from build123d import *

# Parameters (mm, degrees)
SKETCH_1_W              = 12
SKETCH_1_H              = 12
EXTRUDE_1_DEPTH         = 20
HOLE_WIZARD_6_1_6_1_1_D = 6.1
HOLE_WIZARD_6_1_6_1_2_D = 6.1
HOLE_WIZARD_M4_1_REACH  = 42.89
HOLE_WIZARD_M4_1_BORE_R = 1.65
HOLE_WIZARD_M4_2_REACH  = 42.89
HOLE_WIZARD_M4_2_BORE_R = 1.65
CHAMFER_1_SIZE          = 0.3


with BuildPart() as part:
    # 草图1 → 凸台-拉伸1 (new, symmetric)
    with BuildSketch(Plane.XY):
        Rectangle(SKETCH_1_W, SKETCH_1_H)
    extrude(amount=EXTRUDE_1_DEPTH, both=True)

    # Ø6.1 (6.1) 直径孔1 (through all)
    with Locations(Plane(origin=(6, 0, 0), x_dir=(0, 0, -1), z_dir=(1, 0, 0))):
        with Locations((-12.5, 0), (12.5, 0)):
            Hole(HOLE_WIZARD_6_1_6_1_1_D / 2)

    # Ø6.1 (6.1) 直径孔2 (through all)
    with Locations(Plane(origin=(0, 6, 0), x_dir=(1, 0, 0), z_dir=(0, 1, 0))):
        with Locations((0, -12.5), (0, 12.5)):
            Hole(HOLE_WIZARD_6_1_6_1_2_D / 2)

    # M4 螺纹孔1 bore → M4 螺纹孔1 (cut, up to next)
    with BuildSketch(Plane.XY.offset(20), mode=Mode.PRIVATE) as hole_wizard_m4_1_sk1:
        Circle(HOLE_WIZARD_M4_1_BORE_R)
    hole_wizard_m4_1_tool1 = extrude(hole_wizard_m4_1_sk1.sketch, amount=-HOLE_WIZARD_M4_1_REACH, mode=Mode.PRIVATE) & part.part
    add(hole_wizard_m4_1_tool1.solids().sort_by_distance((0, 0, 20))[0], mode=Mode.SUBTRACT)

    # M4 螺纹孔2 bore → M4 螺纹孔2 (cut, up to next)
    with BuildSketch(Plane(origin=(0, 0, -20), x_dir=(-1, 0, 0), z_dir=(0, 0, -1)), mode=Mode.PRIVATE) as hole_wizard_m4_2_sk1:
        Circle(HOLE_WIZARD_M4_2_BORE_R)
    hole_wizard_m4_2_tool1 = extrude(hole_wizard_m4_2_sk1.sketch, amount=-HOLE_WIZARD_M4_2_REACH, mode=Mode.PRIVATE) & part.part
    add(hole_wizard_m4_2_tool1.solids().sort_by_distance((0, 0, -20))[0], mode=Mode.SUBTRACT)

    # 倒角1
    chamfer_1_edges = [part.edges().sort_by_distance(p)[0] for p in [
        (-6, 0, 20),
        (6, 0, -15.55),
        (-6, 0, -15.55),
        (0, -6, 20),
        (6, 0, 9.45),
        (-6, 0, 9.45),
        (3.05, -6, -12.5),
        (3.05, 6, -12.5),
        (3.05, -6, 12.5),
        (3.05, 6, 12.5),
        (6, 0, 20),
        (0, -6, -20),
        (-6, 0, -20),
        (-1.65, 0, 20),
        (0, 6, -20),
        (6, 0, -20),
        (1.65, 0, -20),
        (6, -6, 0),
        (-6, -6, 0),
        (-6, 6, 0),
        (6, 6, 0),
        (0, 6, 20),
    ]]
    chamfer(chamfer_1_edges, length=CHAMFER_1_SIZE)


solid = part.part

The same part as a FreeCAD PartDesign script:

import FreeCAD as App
import Part
import Sketcher


def edges_at(feature, points):
    """Names of the edges that pass closest to the given points."""
    edges = feature.Shape.Edges
    near = lambda p: min(range(len(edges)), key=lambda i: edges[i].distToShape(Part.Vertex(*p))[0])
    return sorted({f"Edge{near(p) + 1}" for p in points})


def add_polygon(sketch, points):
    """Adds a closed chain of lines whose ends are joined by coincident constraints."""
    first, n = sketch.GeometryCount, len(points)
    for a, b in zip(points, points[1:] + points[:1]):
        sketch.addGeometry(Part.LineSegment(App.Vector(*a, 0), App.Vector(*b, 0)), False)
    for i in range(n):
        sketch.addConstraint(Sketcher.Constraint("Coincident", first + i, 2, first + (i + 1) % n, 1))

doc = App.newDocument("Part")
params = doc.addObject("Spreadsheet::Sheet", "Params")
for row, (alias, value) in enumerate([
    ("sketch1_width", "12 mm"),
    ("pad1_length", "40 mm"),
    ("sketch2_diameter", "6.1 mm"),
    ("hole_diameter", "6.1 mm"),
    ("sketch3_diameter", "6.1 mm"),
    ("hole2_diameter", "6.1 mm"),
    ("sketch4_diameter", "3.3 mm"),
    ("pocket1_length", "4.681978 mm"),
    ("sketch5_diameter", "3.3 mm"),
    ("pocket2_length", "4.681978 mm"),
    ("chamfer_size", "0.3 mm"),
], start=1):
    params.set(f"A{row}", alias)
    params.set(f"B{row}", "=" + value)
    params.setAlias(f"B{row}", alias)

body = doc.addObject("PartDesign::Body", "Body")

sketch1 = body.newObject("Sketcher::SketchObject", "Sketch")
sketch1.AttachmentSupport = (doc.getObject("XY_Plane"), [""])
sketch1.MapMode = "FlatFace"
add_polygon(sketch1, [(-6, 6), (-6, -6), (6, -6), (6, 6)])
sketch1.addConstraint([
    Sketcher.Constraint("Vertical", 0),
    Sketcher.Constraint("Horizontal", 1),
    Sketcher.Constraint("Vertical", 2),
    Sketcher.Constraint("Horizontal", 3),
    Sketcher.Constraint("Symmetric", 0, 2, 2, 2, -1, 1),
    Sketcher.Constraint("Equal", 3, 0),
    Sketcher.Constraint("DistanceX", 1, 1, 1, 2, 12.0),
])
sketch1.setExpression("Constraints[10]", "Params.sketch1_width")
pad1 = body.newObject("PartDesign::Pad", "Pad")
pad1.Profile = sketch1
pad1.setExpression("Length", "Params.pad1_length")
pad1.Midplane = True

sketch2 = body.newObject("Sketcher::SketchObject", "Sketch001")
sketch2.AttachmentSupport = (doc.getObject("YZ_Plane"), [""])
sketch2.MapMode = "FlatFace"
sketch2.AttachmentOffset = App.Placement(App.Vector(0, 0, 6), App.Rotation())
sketch2.addGeometry([
    Part.Circle(App.Vector(0, 12.5, 0), App.Vector(0, 0, 1), 3.05),
    Part.Circle(App.Vector(0, -12.5, 0), App.Vector(0, 0, 1), 3.05),
], False)
sketch2.addConstraint([
    Sketcher.Constraint("Equal", 0, 1),
    Sketcher.Constraint("Symmetric", 0, 3, 1, 3, -1, 1),
    Sketcher.Constraint("PointOnObject", 0, 3, -2),
    Sketcher.Constraint("Diameter", 0, 6.1),
    Sketcher.Constraint("DistanceY", 1, 3, 0, 3, 25.0),
])
sketch2.setExpression("Constraints[3]", "Params.sketch2_diameter")
doc.recompute()
hole = body.newObject("PartDesign::Hole", "Hole")
hole.Profile = sketch2
hole.ThreadType = "None"
hole.setExpression("Diameter", "Params.hole_diameter")
hole.DepthType = "ThroughAll"

sketch3 = body.newObject("Sketcher::SketchObject", "Sketch002")
sketch3.AttachmentSupport = (doc.getObject("XZ_Plane"), [""])
sketch3.MapMode = "FlatFace"
sketch3.AttachmentOffset = App.Placement(App.Vector(0, 0, -6), App.Rotation())
sketch3.addGeometry([
    Part.Circle(App.Vector(0, 12.5, 0), App.Vector(0, 0, 1), 3.05),
    Part.Circle(App.Vector(0, -12.5, 0), App.Vector(0, 0, 1), 3.05),
], False)
sketch3.addConstraint([
    Sketcher.Constraint("Equal", 0, 1),
    Sketcher.Constraint("Symmetric", 0, 3, 1, 3, -1, 1),
    Sketcher.Constraint("PointOnObject", 0, 3, -2),
    Sketcher.Constraint("Diameter", 0, 6.1),
    Sketcher.Constraint("DistanceY", 1, 3, 0, 3, 25.0),
])
sketch3.setExpression("Constraints[3]", "Params.sketch3_diameter")
doc.recompute()
hole2 = body.newObject("PartDesign::Hole", "Hole001")
hole2.Profile = sketch3
hole2.ThreadType = "None"
hole2.setExpression("Diameter", "Params.hole2_diameter")
hole2.DepthType = "ThroughAll"
hole2.Reversed = True

sketch4 = body.newObject("Sketcher::SketchObject", "Sketch003")
sketch4.AttachmentSupport = (doc.getObject("XY_Plane"), [""])
sketch4.MapMode = "FlatFace"
sketch4.AttachmentOffset = App.Placement(App.Vector(0, 0, 20), App.Rotation())
sketch4.addGeometry(Part.Circle(App.Vector(0, 0, 0), App.Vector(0, 0, 1), 1.65), False)
sketch4.addConstraint([
    Sketcher.Constraint("Coincident", 0, 3, -1, 1),
    Sketcher.Constraint("Diameter", 0, 3.3),
])
sketch4.setExpression("Constraints[1]", "Params.sketch4_diameter")
pocket1 = body.newObject("PartDesign::Pocket", "Pocket")
pocket1.Profile = sketch4
pocket1.setExpression("Length", "Params.pocket1_length")

sketch5 = body.newObject("Sketcher::SketchObject", "Sketch004")
sketch5.AttachmentSupport = (doc.getObject("XY_Plane"), [""])
sketch5.MapMode = "FlatFace"
sketch5.AttachmentOffset = App.Placement(App.Vector(0, 0, -20), App.Rotation())
sketch5.addGeometry(Part.Circle(App.Vector(0, 0, 0), App.Vector(0, 0, 1), 1.65), False)
sketch5.addConstraint([
    Sketcher.Constraint("Coincident", 0, 3, -1, 1),
    Sketcher.Constraint("Diameter", 0, 3.3),
])
sketch5.setExpression("Constraints[1]", "Params.sketch5_diameter")
pocket2 = body.newObject("PartDesign::Pocket", "Pocket001")
pocket2.Profile = sketch5
pocket2.setExpression("Length", "Params.pocket2_length")
pocket2.Reversed = True
doc.recompute()

chamfer = body.newObject("PartDesign::Chamfer", "Chamfer")
chamfer.Base = (pocket2, edges_at(pocket2, [
    (-6, 0, 20),
    (6, 0, -15.55),
    (-6, 0, -15.55),
    (0, -6, 20),
    (6, 0, 9.45),
    (-6, 0, 9.45),
    (3.05, -6, -12.5),
    (3.05, 6, -12.5),
    (3.05, -6, 12.5),
    (3.05, 6, 12.5),
    (6, 0, 20),
    (0, -6, -20),
    (-6, 0, -20),
    (-1.65, 0, 20),
    (0, 6, -20),
    (6, 0, -20),
    (1.65, 0, -20),
    (6, -6, 0),
    (-6, -6, 0),
    (-6, 6, 0),
    (6, 6, 0),
    (0, 6, 20),
]))
chamfer.setExpression("Size", "Params.chamfer_size")

doc.recompute()
